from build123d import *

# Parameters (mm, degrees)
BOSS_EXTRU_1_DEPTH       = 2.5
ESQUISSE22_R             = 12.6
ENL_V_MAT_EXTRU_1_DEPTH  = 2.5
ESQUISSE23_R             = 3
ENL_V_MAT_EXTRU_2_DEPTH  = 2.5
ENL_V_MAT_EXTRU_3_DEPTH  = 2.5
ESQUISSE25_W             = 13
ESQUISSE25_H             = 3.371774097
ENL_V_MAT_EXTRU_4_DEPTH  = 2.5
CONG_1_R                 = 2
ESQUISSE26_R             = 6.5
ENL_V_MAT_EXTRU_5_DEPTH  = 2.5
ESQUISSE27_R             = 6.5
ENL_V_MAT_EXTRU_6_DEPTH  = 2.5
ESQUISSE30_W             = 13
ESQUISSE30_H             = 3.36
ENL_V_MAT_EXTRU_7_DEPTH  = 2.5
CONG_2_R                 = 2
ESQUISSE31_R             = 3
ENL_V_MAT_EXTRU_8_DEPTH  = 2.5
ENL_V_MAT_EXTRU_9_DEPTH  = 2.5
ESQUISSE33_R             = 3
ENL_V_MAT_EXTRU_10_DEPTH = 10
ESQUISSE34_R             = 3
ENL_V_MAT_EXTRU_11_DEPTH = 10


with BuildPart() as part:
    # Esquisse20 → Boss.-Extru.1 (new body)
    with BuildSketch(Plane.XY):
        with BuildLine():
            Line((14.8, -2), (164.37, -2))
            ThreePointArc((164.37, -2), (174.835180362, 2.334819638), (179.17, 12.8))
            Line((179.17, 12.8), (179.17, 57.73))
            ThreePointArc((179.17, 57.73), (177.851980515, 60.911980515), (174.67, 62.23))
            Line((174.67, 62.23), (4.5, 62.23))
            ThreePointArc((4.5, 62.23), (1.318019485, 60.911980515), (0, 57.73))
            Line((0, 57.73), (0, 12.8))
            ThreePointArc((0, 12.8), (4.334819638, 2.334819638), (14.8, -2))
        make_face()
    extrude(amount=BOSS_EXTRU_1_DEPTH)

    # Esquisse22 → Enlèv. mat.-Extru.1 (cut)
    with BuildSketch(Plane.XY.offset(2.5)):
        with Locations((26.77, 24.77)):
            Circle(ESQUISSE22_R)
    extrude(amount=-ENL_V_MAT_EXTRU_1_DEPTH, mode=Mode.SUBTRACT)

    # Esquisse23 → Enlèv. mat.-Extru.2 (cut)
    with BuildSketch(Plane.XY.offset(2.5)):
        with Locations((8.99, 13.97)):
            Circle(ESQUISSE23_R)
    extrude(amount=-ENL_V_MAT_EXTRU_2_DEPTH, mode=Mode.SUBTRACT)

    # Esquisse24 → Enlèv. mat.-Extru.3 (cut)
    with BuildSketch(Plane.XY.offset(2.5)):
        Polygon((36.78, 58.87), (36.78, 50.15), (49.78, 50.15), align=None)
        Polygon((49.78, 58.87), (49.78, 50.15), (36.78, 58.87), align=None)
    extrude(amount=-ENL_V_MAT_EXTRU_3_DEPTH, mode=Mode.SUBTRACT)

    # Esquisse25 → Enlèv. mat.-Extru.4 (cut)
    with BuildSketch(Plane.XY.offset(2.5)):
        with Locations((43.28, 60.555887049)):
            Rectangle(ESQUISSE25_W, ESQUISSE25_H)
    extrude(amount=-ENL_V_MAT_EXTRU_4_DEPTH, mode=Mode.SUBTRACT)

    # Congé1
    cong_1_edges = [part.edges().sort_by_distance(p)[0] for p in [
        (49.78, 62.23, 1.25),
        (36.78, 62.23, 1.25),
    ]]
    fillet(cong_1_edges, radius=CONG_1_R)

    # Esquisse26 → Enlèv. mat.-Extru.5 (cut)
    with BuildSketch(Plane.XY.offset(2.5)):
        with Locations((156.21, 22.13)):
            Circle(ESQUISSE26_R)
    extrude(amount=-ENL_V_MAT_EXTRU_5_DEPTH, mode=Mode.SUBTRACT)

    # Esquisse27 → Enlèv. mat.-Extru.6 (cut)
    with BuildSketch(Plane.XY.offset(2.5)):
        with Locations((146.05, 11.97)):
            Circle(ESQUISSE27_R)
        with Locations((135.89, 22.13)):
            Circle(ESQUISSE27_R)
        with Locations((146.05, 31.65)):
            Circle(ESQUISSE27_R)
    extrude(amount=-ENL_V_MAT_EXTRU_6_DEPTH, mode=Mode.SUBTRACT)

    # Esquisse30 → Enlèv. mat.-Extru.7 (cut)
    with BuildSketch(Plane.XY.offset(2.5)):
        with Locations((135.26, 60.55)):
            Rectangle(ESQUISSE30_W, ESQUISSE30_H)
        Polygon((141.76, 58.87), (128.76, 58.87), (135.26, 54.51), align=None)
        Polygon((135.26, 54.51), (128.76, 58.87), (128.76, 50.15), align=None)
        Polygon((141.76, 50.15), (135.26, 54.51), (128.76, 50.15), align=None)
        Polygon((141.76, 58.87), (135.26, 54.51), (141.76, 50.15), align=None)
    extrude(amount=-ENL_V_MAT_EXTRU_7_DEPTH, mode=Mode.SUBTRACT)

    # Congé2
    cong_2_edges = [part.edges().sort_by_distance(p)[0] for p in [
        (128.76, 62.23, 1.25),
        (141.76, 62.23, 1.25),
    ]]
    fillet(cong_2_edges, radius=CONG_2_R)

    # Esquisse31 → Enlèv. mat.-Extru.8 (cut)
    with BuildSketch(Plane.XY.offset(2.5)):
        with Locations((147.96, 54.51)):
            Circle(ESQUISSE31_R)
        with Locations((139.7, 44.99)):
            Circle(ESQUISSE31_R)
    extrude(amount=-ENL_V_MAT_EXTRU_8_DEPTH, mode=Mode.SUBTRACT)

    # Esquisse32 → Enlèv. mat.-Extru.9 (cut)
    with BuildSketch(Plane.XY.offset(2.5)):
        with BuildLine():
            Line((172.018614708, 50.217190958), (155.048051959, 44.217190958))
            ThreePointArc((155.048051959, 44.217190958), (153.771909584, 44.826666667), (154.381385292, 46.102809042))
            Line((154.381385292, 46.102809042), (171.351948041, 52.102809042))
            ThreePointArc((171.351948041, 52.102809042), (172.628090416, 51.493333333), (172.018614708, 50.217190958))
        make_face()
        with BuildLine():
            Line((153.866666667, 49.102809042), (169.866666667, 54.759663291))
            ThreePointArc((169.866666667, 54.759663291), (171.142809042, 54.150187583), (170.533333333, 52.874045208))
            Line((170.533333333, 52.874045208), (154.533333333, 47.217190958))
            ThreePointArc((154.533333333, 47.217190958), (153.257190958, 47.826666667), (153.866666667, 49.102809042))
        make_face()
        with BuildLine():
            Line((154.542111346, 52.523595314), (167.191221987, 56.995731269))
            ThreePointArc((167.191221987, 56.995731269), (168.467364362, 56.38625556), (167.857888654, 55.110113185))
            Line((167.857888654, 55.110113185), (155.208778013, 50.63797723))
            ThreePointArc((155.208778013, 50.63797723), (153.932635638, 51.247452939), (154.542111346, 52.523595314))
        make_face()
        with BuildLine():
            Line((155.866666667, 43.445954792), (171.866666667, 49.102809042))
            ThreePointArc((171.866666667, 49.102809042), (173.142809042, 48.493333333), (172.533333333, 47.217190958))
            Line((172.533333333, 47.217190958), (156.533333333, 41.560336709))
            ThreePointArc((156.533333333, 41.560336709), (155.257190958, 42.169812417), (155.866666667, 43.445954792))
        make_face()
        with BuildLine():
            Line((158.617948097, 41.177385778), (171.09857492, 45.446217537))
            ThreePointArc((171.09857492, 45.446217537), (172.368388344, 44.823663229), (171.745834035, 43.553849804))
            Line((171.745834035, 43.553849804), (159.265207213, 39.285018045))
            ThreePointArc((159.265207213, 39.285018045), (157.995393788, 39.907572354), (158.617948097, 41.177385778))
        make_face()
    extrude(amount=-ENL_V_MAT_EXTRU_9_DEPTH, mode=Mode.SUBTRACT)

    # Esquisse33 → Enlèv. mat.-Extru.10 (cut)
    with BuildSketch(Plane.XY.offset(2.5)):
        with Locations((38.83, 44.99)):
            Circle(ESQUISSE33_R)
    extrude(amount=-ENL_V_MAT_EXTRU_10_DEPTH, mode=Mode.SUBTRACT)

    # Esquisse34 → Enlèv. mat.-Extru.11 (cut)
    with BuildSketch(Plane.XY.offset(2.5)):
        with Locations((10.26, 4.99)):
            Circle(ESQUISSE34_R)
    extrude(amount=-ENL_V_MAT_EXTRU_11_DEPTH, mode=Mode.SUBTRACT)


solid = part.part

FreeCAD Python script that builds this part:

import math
import FreeCAD as App
import Part
import Sketcher

V = App.Vector


def edges_at(feature, points):
    """Names of the edges that pass closest to the given points."""
    edges = feature.Shape.Edges
    near = lambda p: min(range(len(edges)), key=lambda i: edges[i].distToShape(Part.Vertex(*p))[0])
    return sorted({f"Edge{near(p) + 1}" for p in points})


def add_polygon(sketch, points):
    """Adds a closed chain of lines whose ends are joined by coincident constraints."""
    first, n = sketch.GeometryCount, len(points)
    for a, b in zip(points, points[1:] + points[:1]):
        sketch.addGeometry(Part.LineSegment(App.Vector(*a, 0), App.Vector(*b, 0)), False)
    for i in range(n):
        sketch.addConstraint(Sketcher.Constraint("Coincident", first + i, 2, first + (i + 1) % n, 1))

doc = App.newDocument("Part")
body = doc.addObject("PartDesign::Body", "Body")

# Sketch on XY plane
sketch1 = doc.addObject("Sketcher::SketchObject", "Sketch")
body.addObject(sketch1)
sketch1.AttachmentSupport = (doc.XY_Plane, [""])
sketch1.MapMode = "FlatFace"
sketch1.addGeometry([
    Part.LineSegment(V(14.8, -2, 0), V(164.4, -2, 0)),  # 0
    Part.ArcOfCircle(Part.Circle(V(164.4, 12.8, 0), V(0, 0, 1), 14.8), math.radians(-90), math.radians(0)),  # 1
    Part.LineSegment(V(179.2, 12.8, 0), V(179.2, 57.7, 0)),  # 2
    Part.ArcOfCircle(Part.Circle(V(174.7, 57.7, 0), V(0, 0, 1), 4.5), math.radians(0), math.radians(90)),  # 3
    Part.LineSegment(V(174.7, 62.2, 0), V(4.5, 62.2, 0)),  # 4
    Part.ArcOfCircle(Part.Circle(V(4.5, 57.7, 0), V(0, 0, 1), 4.5), math.radians(90), math.radians(180)),  # 5
    Part.LineSegment(V(0, 57.7, 0), V(0, 12.8, 0)),  # 6
    Part.ArcOfCircle(Part.Circle(V(14.8, 12.8, 0), V(0, 0, 1), 14.8), math.radians(180), math.radians(270)),  # 7
], False)
sketch1.addConstraint([
    Sketcher.Constraint("Tangent", 0, 2, 1, 1),
    Sketcher.Constraint("Tangent", 1, 2, 2, 1),
    Sketcher.Constraint("Tangent", 2, 2, 3, 1),
    Sketcher.Constraint("Tangent", 3, 2, 4, 1),
    Sketcher.Constraint("Tangent", 4, 2, 5, 1),
    Sketcher.Constraint("Tangent", 5, 2, 6, 1),
    Sketcher.Constraint("Tangent", 6, 2, 7, 1),
    Sketcher.Constraint("Tangent", 7, 2, 0, 1),
    Sketcher.Constraint("Horizontal", 0),
    Sketcher.Constraint("Vertical", 2),
    Sketcher.Constraint("Horizontal", 4),
    Sketcher.Constraint("Vertical", 6),
    Sketcher.Constraint("Equal", 3, 5),
    Sketcher.Constraint("Equal", 1, 7),
    Sketcher.Constraint("PointOnObject", 5, 2, -2),
    Sketcher.Constraint("Radius", 1, 14.8),
    Sketcher.Constraint("Radius", 3, 4.5),
    Sketcher.Constraint("DistanceY", 0, 2, -1, 1, 2.0),
    Sketcher.Constraint("DistanceX", 0, 1, 0, 2, 149.57),
    Sketcher.Constraint("DistanceY", 2, 1, 2, 2, 44.93),
])
pad1 = doc.addObject("PartDesign::Pad", "Pad")
body.addObject(pad1)
pad1.Profile = sketch1
pad1.Length = 2.5

# Sketch on XY plane
sketch2 = doc.addObject("Sketcher::SketchObject", "Sketch001")
body.addObject(sketch2)
sketch2.AttachmentSupport = (doc.XY_Plane, [""])
sketch2.MapMode = "FlatFace"
sketch2.AttachmentOffset = App.Placement(V(0, 0, 2.5), App.Rotation())
sketch2.addGeometry(Part.Circle(V(27, 25, 0), V(0, 0, 1), 13), False)
sketch2.addConstraint([
    Sketcher.Constraint("Diameter", 0, 25.2),
    Sketcher.Constraint("DistanceX", -1, 1, 0, 3, 26.77),
    Sketcher.Constraint("DistanceY", -1, 1, 0, 3, 24.77),
])
pocket1 = doc.addObject("PartDesign::Pocket", "Pocket")
body.addObject(pocket1)
pocket1.Profile = sketch2
pocket1.Length = 2.5

# Sketch on XY plane
sketch3 = doc.addObject("Sketcher::SketchObject", "Sketch002")
body.addObject(sketch3)
sketch3.AttachmentSupport = (doc.XY_Plane, [""])
sketch3.MapMode = "FlatFace"
sketch3.AttachmentOffset = App.Placement(V(0, 0, 2.5), App.Rotation())
sketch3.addGeometry(Part.Circle(V(9, 14, 0), V(0, 0, 1), 3), False)
sketch3.addConstraint([
    Sketcher.Constraint("Diameter", 0, 6.0),
    Sketcher.Constraint("DistanceX", -1, 1, 0, 3, 8.99),
    Sketcher.Constraint("DistanceY", -1, 1, 0, 3, 13.97),
])
pocket2 = doc.addObject("PartDesign::Pocket", "Pocket001")
body.addObject(pocket2)
pocket2.Profile = sketch3
pocket2.Length = 2.5

# Sketch on XY plane
sketch4 = doc.addObject("Sketcher::SketchObject", "Sketch003")
body.addObject(sketch4)
sketch4.AttachmentSupport = (doc.XY_Plane, [""])
sketch4.MapMode = "FlatFace"
sketch4.AttachmentOffset = App.Placement(V(0, 0, 2.5), App.Rotation())
add_polygon(sketch4, [(37, 59), (37, 50), (50, 50), (50, 59)])  # lines 0-3
sketch4.addConstraint([
    Sketcher.Constraint("Vertical", 0),
    Sketcher.Constraint("Horizontal", 1),
    Sketcher.Constraint("Vertical", 2),
    Sketcher.Constraint("Horizontal", 3),
    Sketcher.Constraint("DistanceX", 1, 1, 1, 2, 13.0),
    Sketcher.Constraint("DistanceY", 0, 2, 0, 1, 8.72),
    Sketcher.Constraint("DistanceX", -1, 1, 0, 2, 36.78),
    Sketcher.Constraint("DistanceY", -1, 1, 0, 2, 50.15),
])
pocket3 = doc.addObject("PartDesign::Pocket", "Pocket002")
body.addObject(pocket3)
pocket3.Profile = sketch4
pocket3.Length = 2.5

# Sketch on XY plane
sketch5 = doc.addObject("Sketcher::SketchObject", "Sketch004")
body.addObject(sketch5)
sketch5.AttachmentSupport = (doc.XY_Plane, [""])
sketch5.MapMode = "FlatFace"
sketch5.AttachmentOffset = App.Placement(V(0, 0, 2.5), App.Rotation())
add_polygon(sketch5, [(36.8, 62.2), (36.8, 58.9), (49.8, 58.9), (49.8, 62.2)])  # lines 0-3
sketch5.addConstraint([
    Sketcher.Constraint("Vertical", 0),
    Sketcher.Constraint("Horizontal", 1),
    Sketcher.Constraint("Vertical", 2),
    Sketcher.Constraint("Horizontal", 3),
    Sketcher.Constraint("DistanceX", 1, 1, 1, 2, 13.0),
    Sketcher.Constraint("DistanceX", -1, 1, 0, 2, 36.78),
    Sketcher.Constraint("DistanceY", -1, 1, 0, 2, 58.87),
    Sketcher.Constraint("DistanceY", 0, 2, 0, 1, 3.371774),
])
pocket4 = doc.addObject("PartDesign::Pocket", "Pocket003")
body.addObject(pocket4)
pocket4.Profile = sketch5
pocket4.Length = 2.5
doc.recompute()

fillet = doc.addObject("PartDesign::Fillet", "Fillet")
body.addObject(fillet)
fillet.Base = (pocket4, edges_at(pocket4, [(49.78, 62.23, 1.25), (36.78, 62.23, 1.25)]))
fillet.Radius = 2

# Sketch on XY plane
sketch6 = doc.addObject("Sketcher::SketchObject", "Sketch005")
body.addObject(sketch6)
sketch6.AttachmentSupport = (doc.XY_Plane, [""])
sketch6.MapMode = "FlatFace"
sketch6.AttachmentOffset = App.Placement(V(0, 0, 2.5), App.Rotation())
sketch6.addGeometry(Part.Circle(V(156, 22, 0), V(0, 0, 1), 6), False)
sketch6.addConstraint([
    Sketcher.Constraint("Diameter", 0, 13.0),
    Sketcher.Constraint("DistanceX", -1, 1, 0, 3, 156.21),
    Sketcher.Constraint("DistanceY", -1, 1, 0, 3, 22.13),
])
pocket5 = doc.addObject("PartDesign::Pocket", "Pocket004")
body.addObject(pocket5)
pocket5.Profile = sketch6
pocket5.Length = 2.5

# Sketch on XY plane
sketch7 = doc.addObject("Sketcher::SketchObject", "Sketch006")
body.addObject(sketch7)
sketch7.AttachmentSupport = (doc.XY_Plane, [""])
sketch7.MapMode = "FlatFace"
sketch7.AttachmentOffset = App.Placement(V(0, 0, 2.5), App.Rotation())
sketch7.addGeometry([
    Part.Circle(V(146, 12, 0), V(0, 0, 1), 6),
    Part.Circle(V(136, 22, 0), V(0, 0, 1), 6),
    Part.Circle(V(146, 32, 0), V(0, 0, 1), 6),
], False)
sketch7.addConstraint([
    Sketcher.Constraint("Equal", 0, 1),
    Sketcher.Constraint("Equal", 1, 2),
    Sketcher.Constraint("Vertical", 0, 3, 2, 3),
    Sketcher.Constraint("Diameter", 0, 13.0),
    Sketcher.Constraint("DistanceX", -1, 1, 0, 3, 146.05),
    Sketcher.Constraint("DistanceY", -1, 1, 0, 3, 11.97),
    Sketcher.Constraint("DistanceX", -1, 1, 1, 3, 135.89),
    Sketcher.Constraint("DistanceY", -1, 1, 1, 3, 22.13),
    Sketcher.Constraint("DistanceY", -1, 1, 2, 3, 31.65),
])
pocket6 = doc.addObject("PartDesign::Pocket", "Pocket005")
body.addObject(pocket6)
pocket6.Profile = sketch7
pocket6.Length = 2.5

# Sketch on XY plane
sketch8 = doc.addObject("Sketcher::SketchObject", "Sketch007")
body.addObject(sketch8)
sketch8.AttachmentSupport = (doc.XY_Plane, [""])
sketch8.MapMode = "FlatFace"
sketch8.AttachmentOffset = App.Placement(V(0, 0, 2.5), App.Rotation())
add_polygon(sketch8, [(129, 62), (129, 50), (142, 50), (142, 62)])  # lines 0-3
sketch8.addConstraint([
    Sketcher.Constraint("Vertical", 0),
    Sketcher.Constraint("Horizontal", 1),
    Sketcher.Constraint("Vertical", 2),
    Sketcher.Constraint("Horizontal", 3),
    Sketcher.Constraint("DistanceX", 1, 1, 1, 2, 13.0),
    Sketcher.Constraint("DistanceY", 0, 2, 0, 1, 12.08),
    Sketcher.Constraint("DistanceX", -1, 1, 0, 2, 128.76),
    Sketcher.Constraint("DistanceY", -1, 1, 0, 2, 50.15),
])
pocket7 = doc.addObject("PartDesign::Pocket", "Pocket006")
body.addObject(pocket7)
pocket7.Profile = sketch8
pocket7.Length = 2.5
doc.recompute()

fillet2 = doc.addObject("PartDesign::Fillet", "Fillet001")
body.addObject(fillet2)
fillet2.Base = (pocket7, edges_at(pocket7, [(128.76, 62.23, 1.25), (141.76, 62.23, 1.25)]))
fillet2.Radius = 2

# Sketch on XY plane
sketch9 = doc.addObject("Sketcher::SketchObject", "Sketch008")
body.addObject(sketch9)
sketch9.AttachmentSupport = (doc.XY_Plane, [""])
sketch9.MapMode = "FlatFace"
sketch9.AttachmentOffset = App.Placement(V(0, 0, 2.5), App.Rotation())
sketch9.addGeometry([
    Part.Circle(V(148, 54.5, 0), V(0, 0, 1), 3),
    Part.Circle(V(139.7, 45, 0), V(0, 0, 1), 3),
], False)
sketch9.addConstraint([
    Sketcher.Constraint("Equal", 0, 1),
    Sketcher.Constraint("Diameter", 0, 6.0),
    Sketcher.Constraint("DistanceX", -1, 1, 1, 3, 139.7),
    Sketcher.Constraint("DistanceX", -1, 1, 0, 3, 147.96),
    Sketcher.Constraint("DistanceY", -1, 1, 0, 3, 54.51),
    Sketcher.Constraint("DistanceY", -1, 1, 1, 3, 44.99),
])
pocket8 = doc.addObject("PartDesign::Pocket", "Pocket007")
body.addObject(pocket8)
pocket8.Profile = sketch9
pocket8.Length = 2.5

# Sketch on XY plane
sketch10 = doc.addObject("Sketcher::SketchObject", "Sketch009")
body.addObject(sketch10)
sketch10.AttachmentSupport = (doc.XY_Plane, [""])
sketch10.MapMode = "FlatFace"
sketch10.AttachmentOffset = App.Placement(V(0, 0, 2.5), App.Rotation())
sketch10.addGeometry([
    Part.LineSegment(V(155, 44.2, 0), V(172, 50.2, 0)),  # 0
    Part.ArcOfCircle(Part.Circle(V(171.7, 51.2, 0), V(0, 0, 1), 1), math.radians(-71), math.radians(109)),  # 1
    Part.LineSegment(V(171.4, 52.1, 0), V(154.4, 46.1, 0)),  # 2
    Part.ArcOfCircle(Part.Circle(V(154.7, 45.2, 0), V(0, 0, 1), 1), math.radians(109), math.radians(289)),  # 3
    Part.LineSegment(V(169.9, 54.8, 0), V(153.9, 49.1, 0)),  # 4
    Part.ArcOfCircle(Part.Circle(V(154.2, 48.2, 0), V(0, 0, 1), 1), math.radians(109), math.radians(289)),  # 5
    Part.LineSegment(V(154.5, 47.2, 0), V(170.5, 52.9, 0)),  # 6
    Part.ArcOfCircle(Part.Circle(V(170.2, 53.8, 0), V(0, 0, 1), 1), math.radians(-71), math.radians(109)),  # 7
    Part.LineSegment(V(167.2, 57, 0), V(154.5, 52.5, 0)),  # 8
    Part.ArcOfCircle(Part.Circle(V(154.9, 51.6, 0), V(0, 0, 1), 1), math.radians(109), math.radians(289)),  # 9
    Part.LineSegment(V(155.2, 50.6, 0), V(167.9, 55.1, 0)),  # 10
    Part.ArcOfCircle(Part.Circle(V(167.5, 56.1, 0), V(0, 0, 1), 1), math.radians(-71), math.radians(109)),  # 11
    Part.LineSegment(V(171.9, 49.1, 0), V(155.9, 43.4, 0)),  # 12
    Part.ArcOfCircle(Part.Circle(V(156.2, 42.5, 0), V(0, 0, 1), 1), math.radians(109), math.radians(289)),  # 13
    Part.LineSegment(V(156.5, 41.6, 0), V(172.5, 47.2, 0)),  # 14
    Part.ArcOfCircle(Part.Circle(V(172.2, 48.2, 0), V(0, 0, 1), 1), math.radians(-71), math.radians(109)),  # 15
    Part.LineSegment(V(171.1, 45.4, 0), V(158.6, 41.2, 0)),  # 16
    Part.ArcOfCircle(Part.Circle(V(158.9, 40.2, 0), V(0, 0, 1), 1), math.radians(109), math.radians(289)),  # 17
    Part.LineSegment(V(159.3, 39.3, 0), V(171.7, 43.6, 0)),  # 18
    Part.ArcOfCircle(Part.Circle(V(171.4, 44.5, 0), V(0, 0, 1), 1), math.radians(-71), math.radians(109)),  # 19
], False)
sketch10.addConstraint([
    Sketcher.Constraint("Tangent", 0, 2, 1, 1),
    Sketcher.Constraint("Tangent", 1, 2, 2, 1),
    Sketcher.Constraint("Tangent", 2, 2, 3, 1),
    Sketcher.Constraint("Tangent", 3, 2, 0, 1),
    Sketcher.Constraint("Tangent", 4, 2, 5, 1),
    Sketcher.Constraint("Tangent", 5, 2, 6, 1),
    Sketcher.Constraint("Tangent", 6, 2, 7, 1),
    Sketcher.Constraint("Tangent", 7, 2, 4, 1),
    Sketcher.Constraint("Tangent", 8, 2, 9, 1),
    Sketcher.Constraint("Tangent", 9, 2, 10, 1),
    Sketcher.Constraint("Tangent", 10, 2, 11, 1),
    Sketcher.Constraint("Tangent", 11, 2, 8, 1),
    Sketcher.Constraint("Tangent", 12, 2, 13, 1),
    Sketcher.Constraint("Tangent", 13, 2, 14, 1),
    Sketcher.Constraint("Tangent", 14, 2, 15, 1),
    Sketcher.Constraint("Tangent", 15, 2, 12, 1),
    Sketcher.Constraint("Tangent", 16, 2, 17, 1),
    Sketcher.Constraint("Tangent", 17, 2, 18, 1),
    Sketcher.Constraint("Tangent", 18, 2, 19, 1),
    Sketcher.Constraint("Tangent", 19, 2, 16, 1),
    Sketcher.Constraint("Equal", 1, 3),
    Sketcher.Constraint("Equal", 3, 5),
    Sketcher.Constraint("Equal", 5, 7),
    Sketcher.Constraint("Equal", 7, 9),
    Sketcher.Constraint("Equal", 9, 11),
    Sketcher.Constraint("Equal", 11, 13),
    Sketcher.Constraint("Equal", 13, 15),
    Sketcher.Constraint("Equal", 15, 17),
    Sketcher.Constraint("Equal", 17, 19),
    Sketcher.Constraint("Parallel", 2, 4),
    Sketcher.Constraint("Parallel", 6, 8),
    Sketcher.Constraint("Parallel", 10, 12),
    Sketcher.Constraint("Horizontal", 5, 3, 15, 3),
    Sketcher.Constraint("Equal", 6, 12),
    Sketcher.Constraint("Radius", 1, 1.0),
    Sketcher.Constraint("Distance", 0, 18.0),
    Sketcher.Constraint("DistanceY", 3, 3, 1, 3, 6.0),
    Sketcher.Constraint("DistanceY", 3, 3, 5, 3, 3.0),
    Sketcher.Constraint("DistanceX", 5, 3, 7, 3, 16.0),
    Sketcher.Constraint("DistanceX", 5, 3, 13, 3, 2.0),
    Sketcher.Constraint("DistanceX", -1, 1, 5, 3, 154.2),
    Sketcher.Constraint("DistanceY", -1, 1, 1, 3, 51.16),
    Sketcher.Constraint("DistanceY", -1, 1, 17, 3, 40.231202),
    Sketcher.Constraint("DistanceX", 18, 2, 14, 2, 0.787499),
    Sketcher.Constraint("DistanceX", -1, 1, 1, 3, 171.685281),
    Sketcher.Constraint("DistanceX", -1, 1, 8, 2, 154.542111),
    Sketcher.Constraint("DistanceX", -1, 1, 10, 2, 167.857889),
    Sketcher.Constraint("DistanceY", -1, 1, 11, 2, 56.995731),
    Sketcher.Constraint("DistanceX", -1, 1, 16, 2, 158.617948),
    Sketcher.Constraint("DistanceY", -1, 1, 17, 2, 39.285018),
])
pocket9 = doc.addObject("PartDesign::Pocket", "Pocket008")
body.addObject(pocket9)
pocket9.Profile = sketch10
pocket9.Length = 2.5

# Sketch on XY plane
sketch11 = doc.addObject("Sketcher::SketchObject", "Sketch010")
body.addObject(sketch11)
sketch11.AttachmentSupport = (doc.XY_Plane, [""])
sketch11.MapMode = "FlatFace"
sketch11.AttachmentOffset = App.Placement(V(0, 0, 2.5), App.Rotation())
sketch11.addGeometry(Part.Circle(V(38.8, 45, 0), V(0, 0, 1), 3), False)
sketch11.addConstraint([
    Sketcher.Constraint("Diameter", 0, 6.0),
    Sketcher.Constraint("DistanceX", -1, 1, 0, 3, 38.83),
    Sketcher.Constraint("DistanceY", -1, 1, 0, 3, 44.99),
])
pocket10 = doc.addObject("PartDesign::Pocket", "Pocket009")
body.addObject(pocket10)
pocket10.Profile = sketch11
pocket10.Length = 10

# Sketch on XY plane
sketch12 = doc.addObject("Sketcher::SketchObject", "Sketch011")
body.addObject(sketch12)
sketch12.AttachmentSupport = (doc.XY_Plane, [""])
sketch12.MapMode = "FlatFace"
sketch12.AttachmentOffset = App.Placement(V(0, 0, 2.5), App.Rotation())
sketch12.addGeometry(Part.Circle(V(10.3, 5, 0), V(0, 0, 1), 3), False)
sketch12.addConstraint([
    Sketcher.Constraint("Diameter", 0, 6.0),
    Sketcher.Constraint("DistanceX", -1, 1, 0, 3, 10.26),
    Sketcher.Constraint("DistanceY", -1, 1, 0, 3, 4.99),
])
pocket11 = doc.addObject("PartDesign::Pocket", "Pocket010")
body.addObject(pocket11)
pocket11.Profile = sketch12
pocket11.Length = 10

doc.recompute()
